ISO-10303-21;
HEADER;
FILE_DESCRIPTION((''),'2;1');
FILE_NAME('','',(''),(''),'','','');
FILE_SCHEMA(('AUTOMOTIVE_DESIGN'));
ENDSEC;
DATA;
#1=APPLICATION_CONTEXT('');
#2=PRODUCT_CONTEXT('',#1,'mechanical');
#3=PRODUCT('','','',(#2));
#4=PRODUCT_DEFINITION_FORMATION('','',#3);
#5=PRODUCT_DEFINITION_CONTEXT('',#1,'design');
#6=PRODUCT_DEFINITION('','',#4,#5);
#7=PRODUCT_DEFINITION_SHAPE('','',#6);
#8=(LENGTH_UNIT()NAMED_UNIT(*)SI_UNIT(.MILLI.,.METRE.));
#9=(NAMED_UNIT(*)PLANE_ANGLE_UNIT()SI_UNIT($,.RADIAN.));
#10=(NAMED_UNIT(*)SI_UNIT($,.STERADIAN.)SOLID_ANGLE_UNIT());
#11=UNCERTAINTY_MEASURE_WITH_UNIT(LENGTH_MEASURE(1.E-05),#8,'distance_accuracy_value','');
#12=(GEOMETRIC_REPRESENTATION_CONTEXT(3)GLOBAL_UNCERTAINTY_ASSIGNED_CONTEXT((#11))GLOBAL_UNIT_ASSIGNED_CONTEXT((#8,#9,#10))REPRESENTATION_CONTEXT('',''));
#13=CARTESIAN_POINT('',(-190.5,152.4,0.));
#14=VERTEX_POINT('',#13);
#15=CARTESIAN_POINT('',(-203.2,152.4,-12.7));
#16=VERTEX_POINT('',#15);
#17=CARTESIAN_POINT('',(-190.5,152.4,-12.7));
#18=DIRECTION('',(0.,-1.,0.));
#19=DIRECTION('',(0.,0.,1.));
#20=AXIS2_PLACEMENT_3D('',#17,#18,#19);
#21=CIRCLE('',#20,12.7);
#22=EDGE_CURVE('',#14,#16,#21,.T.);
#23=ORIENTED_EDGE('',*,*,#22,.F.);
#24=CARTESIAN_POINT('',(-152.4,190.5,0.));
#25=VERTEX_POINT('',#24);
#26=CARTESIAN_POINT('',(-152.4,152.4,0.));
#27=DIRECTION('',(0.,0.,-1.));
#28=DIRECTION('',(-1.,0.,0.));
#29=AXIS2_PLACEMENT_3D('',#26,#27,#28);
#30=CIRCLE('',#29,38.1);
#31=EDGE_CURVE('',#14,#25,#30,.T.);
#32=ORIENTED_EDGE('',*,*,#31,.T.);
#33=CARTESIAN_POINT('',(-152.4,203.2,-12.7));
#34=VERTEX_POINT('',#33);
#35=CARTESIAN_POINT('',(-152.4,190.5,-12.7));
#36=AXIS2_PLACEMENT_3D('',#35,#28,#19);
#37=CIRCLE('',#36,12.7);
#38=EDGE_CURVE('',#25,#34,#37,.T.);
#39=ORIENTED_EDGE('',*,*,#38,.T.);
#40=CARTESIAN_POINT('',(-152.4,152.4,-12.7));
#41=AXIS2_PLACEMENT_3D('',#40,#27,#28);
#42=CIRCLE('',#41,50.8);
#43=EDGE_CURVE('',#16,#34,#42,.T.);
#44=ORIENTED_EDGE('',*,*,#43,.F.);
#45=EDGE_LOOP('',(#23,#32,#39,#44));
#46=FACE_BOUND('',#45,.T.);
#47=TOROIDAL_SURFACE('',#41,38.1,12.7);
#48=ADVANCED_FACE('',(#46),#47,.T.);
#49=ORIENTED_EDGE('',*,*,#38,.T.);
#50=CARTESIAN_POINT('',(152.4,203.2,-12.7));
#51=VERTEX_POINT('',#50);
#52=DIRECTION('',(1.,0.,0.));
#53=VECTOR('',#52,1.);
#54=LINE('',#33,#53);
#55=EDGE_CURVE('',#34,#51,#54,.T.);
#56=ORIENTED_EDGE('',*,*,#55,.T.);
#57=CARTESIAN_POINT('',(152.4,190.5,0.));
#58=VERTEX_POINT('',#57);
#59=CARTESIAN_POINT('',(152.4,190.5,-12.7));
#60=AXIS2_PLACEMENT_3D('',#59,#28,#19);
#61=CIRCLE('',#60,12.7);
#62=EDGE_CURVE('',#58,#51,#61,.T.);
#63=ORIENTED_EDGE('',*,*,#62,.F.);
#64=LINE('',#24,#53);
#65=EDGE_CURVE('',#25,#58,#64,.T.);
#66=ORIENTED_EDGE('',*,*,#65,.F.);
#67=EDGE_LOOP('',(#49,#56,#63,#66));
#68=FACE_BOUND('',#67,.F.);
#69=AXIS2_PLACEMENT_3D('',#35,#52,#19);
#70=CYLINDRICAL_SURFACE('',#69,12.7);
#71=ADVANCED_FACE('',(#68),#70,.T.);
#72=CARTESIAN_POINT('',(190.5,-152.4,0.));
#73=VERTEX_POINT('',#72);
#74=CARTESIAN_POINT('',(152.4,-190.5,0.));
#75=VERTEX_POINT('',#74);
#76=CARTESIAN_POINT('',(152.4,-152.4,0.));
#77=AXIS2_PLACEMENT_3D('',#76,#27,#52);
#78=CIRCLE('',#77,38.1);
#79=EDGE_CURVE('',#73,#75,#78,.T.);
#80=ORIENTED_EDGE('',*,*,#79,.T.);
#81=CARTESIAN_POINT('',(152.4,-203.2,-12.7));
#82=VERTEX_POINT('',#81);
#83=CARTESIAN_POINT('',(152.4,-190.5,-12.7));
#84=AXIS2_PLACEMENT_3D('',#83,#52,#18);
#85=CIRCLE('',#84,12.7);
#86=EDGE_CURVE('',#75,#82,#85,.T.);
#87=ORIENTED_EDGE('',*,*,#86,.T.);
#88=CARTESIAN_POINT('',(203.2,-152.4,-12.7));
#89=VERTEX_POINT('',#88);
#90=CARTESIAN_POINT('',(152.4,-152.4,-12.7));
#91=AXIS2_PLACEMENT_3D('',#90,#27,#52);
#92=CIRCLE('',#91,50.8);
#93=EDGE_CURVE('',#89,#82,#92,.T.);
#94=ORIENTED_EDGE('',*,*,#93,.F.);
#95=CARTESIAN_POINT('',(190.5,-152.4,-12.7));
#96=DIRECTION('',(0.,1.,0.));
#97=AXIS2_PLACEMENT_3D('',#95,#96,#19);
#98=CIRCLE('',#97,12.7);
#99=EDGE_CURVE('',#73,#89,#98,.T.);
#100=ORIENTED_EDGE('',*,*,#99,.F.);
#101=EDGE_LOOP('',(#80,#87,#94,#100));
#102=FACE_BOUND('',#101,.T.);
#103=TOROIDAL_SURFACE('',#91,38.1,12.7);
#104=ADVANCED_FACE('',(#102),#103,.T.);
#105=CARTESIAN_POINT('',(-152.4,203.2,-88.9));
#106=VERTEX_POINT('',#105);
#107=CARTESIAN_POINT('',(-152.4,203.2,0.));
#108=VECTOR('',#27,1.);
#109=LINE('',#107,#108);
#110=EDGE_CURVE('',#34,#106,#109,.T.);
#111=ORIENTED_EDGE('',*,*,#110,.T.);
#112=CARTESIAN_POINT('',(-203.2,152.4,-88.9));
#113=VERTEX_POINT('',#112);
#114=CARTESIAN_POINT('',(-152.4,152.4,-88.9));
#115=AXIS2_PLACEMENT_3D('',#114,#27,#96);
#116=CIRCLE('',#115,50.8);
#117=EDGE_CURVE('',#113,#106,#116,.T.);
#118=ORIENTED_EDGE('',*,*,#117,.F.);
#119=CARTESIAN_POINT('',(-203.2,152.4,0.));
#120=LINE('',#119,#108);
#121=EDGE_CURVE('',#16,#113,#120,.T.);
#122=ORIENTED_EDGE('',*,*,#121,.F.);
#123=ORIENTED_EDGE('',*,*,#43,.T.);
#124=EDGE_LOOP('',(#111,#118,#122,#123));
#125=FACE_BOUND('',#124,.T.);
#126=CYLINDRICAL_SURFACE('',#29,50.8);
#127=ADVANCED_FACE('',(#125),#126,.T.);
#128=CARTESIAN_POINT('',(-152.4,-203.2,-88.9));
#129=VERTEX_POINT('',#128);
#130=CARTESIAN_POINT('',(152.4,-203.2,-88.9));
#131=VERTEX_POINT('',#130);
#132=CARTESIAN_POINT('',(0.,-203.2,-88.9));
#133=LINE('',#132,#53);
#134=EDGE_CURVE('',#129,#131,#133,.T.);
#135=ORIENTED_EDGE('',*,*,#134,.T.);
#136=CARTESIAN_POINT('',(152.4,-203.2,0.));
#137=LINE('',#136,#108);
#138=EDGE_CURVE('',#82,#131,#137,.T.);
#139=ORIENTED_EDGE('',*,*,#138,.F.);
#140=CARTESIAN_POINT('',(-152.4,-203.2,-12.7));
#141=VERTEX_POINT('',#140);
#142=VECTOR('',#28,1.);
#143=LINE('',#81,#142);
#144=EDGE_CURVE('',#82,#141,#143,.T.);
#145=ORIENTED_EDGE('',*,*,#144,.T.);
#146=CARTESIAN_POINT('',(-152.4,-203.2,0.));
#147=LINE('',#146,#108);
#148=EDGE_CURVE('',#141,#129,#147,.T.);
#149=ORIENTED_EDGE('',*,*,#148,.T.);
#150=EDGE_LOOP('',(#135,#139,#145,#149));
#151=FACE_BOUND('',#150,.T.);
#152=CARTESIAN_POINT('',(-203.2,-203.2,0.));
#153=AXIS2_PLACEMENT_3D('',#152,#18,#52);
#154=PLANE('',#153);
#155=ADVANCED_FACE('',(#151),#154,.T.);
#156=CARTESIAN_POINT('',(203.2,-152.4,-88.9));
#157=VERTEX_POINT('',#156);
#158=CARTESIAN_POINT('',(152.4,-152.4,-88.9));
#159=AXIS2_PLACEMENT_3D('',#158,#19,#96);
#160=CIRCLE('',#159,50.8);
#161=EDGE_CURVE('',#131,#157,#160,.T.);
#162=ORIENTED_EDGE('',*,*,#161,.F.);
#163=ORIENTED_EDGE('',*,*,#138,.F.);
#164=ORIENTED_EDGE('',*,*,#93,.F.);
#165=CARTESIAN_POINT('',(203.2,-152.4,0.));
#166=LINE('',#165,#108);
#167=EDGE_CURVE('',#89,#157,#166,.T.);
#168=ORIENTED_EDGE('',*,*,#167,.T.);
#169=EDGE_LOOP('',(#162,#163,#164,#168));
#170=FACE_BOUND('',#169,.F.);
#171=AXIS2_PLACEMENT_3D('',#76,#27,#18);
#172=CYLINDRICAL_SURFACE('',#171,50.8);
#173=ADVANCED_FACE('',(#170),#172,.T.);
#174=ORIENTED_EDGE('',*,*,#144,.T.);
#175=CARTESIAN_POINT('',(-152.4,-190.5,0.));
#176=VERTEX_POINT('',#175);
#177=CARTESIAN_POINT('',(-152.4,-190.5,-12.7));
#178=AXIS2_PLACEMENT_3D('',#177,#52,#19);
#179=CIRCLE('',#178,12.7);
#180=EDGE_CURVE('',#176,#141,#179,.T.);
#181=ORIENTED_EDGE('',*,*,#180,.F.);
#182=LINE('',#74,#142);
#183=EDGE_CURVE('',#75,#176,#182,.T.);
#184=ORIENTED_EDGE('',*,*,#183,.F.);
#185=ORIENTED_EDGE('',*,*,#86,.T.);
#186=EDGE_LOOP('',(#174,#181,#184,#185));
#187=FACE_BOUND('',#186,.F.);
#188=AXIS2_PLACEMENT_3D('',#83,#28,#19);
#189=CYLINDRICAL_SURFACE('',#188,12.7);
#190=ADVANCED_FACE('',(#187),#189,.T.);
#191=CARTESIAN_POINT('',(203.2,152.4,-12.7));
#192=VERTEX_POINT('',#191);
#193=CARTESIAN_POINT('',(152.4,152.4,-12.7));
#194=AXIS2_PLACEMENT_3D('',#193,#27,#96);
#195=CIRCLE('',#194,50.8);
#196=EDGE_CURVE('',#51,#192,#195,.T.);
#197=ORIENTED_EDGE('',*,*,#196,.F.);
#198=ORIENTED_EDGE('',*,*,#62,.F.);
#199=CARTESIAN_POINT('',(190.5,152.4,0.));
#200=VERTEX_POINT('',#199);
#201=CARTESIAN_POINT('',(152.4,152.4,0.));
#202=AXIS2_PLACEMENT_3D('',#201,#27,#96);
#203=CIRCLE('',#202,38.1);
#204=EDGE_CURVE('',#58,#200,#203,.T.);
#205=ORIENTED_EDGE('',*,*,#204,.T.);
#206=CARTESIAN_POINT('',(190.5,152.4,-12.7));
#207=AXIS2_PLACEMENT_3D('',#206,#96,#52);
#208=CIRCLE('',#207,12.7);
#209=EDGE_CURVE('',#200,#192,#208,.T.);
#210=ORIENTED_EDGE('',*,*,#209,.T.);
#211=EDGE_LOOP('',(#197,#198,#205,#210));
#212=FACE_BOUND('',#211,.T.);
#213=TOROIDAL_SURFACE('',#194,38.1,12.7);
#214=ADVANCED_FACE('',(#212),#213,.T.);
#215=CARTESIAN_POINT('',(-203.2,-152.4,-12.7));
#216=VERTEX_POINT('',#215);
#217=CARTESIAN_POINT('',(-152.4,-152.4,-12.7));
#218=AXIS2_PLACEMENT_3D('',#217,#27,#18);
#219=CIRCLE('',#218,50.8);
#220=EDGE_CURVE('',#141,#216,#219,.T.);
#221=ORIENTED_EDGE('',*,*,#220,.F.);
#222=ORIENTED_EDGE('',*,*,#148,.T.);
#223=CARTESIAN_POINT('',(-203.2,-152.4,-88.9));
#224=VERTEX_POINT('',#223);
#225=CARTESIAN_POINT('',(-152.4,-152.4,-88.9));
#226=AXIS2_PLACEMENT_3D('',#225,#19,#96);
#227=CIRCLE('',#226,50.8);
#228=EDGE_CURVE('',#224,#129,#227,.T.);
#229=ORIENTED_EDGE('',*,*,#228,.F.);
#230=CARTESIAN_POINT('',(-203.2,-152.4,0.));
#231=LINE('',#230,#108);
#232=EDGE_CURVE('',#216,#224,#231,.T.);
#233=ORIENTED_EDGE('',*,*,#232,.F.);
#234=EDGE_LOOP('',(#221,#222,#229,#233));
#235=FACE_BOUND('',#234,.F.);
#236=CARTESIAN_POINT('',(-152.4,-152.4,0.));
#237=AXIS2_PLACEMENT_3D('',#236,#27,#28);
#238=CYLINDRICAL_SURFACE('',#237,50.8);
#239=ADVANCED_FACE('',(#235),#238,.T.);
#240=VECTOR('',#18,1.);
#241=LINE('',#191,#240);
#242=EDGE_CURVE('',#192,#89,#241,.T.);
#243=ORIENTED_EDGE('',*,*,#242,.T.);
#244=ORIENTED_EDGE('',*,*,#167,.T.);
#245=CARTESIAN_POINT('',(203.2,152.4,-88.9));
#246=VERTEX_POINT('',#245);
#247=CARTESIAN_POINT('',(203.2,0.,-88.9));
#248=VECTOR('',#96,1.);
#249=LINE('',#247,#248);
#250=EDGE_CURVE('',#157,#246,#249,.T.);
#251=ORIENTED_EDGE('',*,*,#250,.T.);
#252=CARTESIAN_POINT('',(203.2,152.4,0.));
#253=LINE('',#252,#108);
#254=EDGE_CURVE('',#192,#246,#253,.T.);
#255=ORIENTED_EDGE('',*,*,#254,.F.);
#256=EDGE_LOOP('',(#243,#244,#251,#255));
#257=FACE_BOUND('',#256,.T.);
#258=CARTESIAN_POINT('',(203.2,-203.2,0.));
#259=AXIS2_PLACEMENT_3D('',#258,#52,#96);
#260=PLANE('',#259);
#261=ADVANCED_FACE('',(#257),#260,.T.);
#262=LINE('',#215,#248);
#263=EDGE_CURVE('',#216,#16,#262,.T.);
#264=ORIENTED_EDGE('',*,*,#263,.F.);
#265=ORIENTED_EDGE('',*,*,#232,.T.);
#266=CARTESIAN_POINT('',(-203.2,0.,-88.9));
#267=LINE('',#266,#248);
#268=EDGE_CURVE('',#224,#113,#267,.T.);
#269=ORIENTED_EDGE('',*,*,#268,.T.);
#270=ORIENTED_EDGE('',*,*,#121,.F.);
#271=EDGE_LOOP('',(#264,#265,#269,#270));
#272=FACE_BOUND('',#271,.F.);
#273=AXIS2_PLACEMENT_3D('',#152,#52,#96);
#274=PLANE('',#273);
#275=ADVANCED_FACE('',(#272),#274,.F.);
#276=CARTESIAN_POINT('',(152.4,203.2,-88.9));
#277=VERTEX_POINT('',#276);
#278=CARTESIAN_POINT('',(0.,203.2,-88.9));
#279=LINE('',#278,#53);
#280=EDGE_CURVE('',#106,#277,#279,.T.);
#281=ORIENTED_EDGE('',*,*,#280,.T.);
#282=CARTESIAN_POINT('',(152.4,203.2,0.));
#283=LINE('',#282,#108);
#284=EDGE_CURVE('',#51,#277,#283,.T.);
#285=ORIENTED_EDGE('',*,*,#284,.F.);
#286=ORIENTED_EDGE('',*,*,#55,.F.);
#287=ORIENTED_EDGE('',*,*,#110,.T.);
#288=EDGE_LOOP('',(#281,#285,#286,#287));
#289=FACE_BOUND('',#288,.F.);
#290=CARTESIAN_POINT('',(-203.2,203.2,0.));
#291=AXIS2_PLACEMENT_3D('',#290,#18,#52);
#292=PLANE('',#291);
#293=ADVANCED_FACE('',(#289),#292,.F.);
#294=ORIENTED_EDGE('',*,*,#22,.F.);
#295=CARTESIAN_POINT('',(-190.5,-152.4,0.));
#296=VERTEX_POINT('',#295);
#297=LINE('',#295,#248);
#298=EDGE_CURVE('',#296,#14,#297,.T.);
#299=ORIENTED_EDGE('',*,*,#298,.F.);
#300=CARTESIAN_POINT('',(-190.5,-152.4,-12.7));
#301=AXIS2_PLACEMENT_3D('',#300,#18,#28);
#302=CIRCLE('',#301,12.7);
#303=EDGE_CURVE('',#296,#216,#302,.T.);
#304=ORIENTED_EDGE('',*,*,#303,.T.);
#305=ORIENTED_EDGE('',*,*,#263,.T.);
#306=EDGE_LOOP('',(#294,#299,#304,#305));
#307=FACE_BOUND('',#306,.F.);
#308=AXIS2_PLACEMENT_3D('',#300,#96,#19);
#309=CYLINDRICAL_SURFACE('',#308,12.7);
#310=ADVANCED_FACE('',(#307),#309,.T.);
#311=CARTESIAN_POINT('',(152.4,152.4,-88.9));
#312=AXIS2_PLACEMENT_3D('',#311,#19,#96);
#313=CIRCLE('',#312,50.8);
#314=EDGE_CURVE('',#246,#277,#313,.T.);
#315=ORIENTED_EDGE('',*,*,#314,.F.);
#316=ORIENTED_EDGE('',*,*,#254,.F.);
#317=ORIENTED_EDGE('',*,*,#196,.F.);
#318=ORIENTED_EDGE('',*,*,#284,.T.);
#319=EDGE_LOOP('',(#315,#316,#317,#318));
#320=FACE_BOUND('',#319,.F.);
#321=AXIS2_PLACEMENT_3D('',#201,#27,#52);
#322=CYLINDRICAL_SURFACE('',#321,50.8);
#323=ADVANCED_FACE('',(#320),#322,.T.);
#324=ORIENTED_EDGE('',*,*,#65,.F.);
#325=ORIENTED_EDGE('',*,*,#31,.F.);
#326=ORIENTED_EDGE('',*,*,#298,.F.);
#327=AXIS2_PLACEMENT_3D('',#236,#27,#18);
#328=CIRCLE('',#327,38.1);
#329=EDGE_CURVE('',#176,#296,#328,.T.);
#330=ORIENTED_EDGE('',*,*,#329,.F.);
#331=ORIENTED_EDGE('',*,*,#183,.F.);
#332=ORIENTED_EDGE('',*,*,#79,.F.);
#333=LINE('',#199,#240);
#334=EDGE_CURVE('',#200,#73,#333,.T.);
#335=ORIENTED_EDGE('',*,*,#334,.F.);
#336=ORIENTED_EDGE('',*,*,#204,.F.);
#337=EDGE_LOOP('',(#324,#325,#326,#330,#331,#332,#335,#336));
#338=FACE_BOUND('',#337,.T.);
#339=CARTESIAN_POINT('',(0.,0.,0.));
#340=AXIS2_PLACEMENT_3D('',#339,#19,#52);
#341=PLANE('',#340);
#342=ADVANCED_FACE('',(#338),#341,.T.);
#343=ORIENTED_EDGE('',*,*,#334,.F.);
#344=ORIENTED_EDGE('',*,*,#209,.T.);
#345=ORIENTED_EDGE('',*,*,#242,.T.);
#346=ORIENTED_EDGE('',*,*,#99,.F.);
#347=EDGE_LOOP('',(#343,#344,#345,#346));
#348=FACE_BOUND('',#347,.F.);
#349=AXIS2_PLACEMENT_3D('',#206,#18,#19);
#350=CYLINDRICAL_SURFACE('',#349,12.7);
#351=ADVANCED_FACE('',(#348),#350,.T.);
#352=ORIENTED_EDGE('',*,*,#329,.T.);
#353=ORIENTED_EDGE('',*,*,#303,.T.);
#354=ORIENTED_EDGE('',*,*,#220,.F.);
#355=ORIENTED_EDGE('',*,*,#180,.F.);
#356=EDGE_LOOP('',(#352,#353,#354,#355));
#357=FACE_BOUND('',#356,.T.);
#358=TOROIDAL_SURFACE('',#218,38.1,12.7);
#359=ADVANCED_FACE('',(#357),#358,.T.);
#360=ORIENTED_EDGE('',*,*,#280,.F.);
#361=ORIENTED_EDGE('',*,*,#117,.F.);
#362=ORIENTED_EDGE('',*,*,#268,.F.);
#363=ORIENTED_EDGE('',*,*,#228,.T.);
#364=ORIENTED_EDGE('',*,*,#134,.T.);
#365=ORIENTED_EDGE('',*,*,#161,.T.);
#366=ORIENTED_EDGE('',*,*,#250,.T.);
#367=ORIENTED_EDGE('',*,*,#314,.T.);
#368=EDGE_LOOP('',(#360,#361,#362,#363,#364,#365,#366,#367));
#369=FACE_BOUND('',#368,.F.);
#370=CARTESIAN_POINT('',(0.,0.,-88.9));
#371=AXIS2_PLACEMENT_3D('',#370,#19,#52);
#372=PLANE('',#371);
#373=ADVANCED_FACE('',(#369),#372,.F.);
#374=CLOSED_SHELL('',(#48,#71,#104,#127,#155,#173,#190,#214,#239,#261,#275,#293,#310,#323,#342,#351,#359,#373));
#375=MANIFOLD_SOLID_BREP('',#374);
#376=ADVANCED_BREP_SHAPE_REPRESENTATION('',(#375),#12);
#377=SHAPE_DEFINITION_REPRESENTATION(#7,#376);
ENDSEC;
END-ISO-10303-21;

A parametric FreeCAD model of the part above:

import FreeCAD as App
import Part
import Sketcher
from FreeCAD import Vector
Q = App.Units.Quantity


def edges_at(feature, points):
    """Names of the edges that pass closest to the given points."""
    edges = feature.Shape.Edges
    near = lambda p: min(range(len(edges)), key=lambda i: edges[i].distToShape(Part.Vertex(*p))[0])
    return sorted({f"Edge{near(p) + 1}" for p in points})


def add_polygon(sketch, points):
    """Adds a closed chain of lines whose ends are joined by coincident constraints."""
    first, n = sketch.GeometryCount, len(points)
    for a, b in zip(points, points[1:] + points[:1]):
        sketch.addGeometry(Part.LineSegment(App.Vector(*a, 0), App.Vector(*b, 0)), False)
    for i in range(n):
        sketch.addConstraint(Sketcher.Constraint("Coincident", first + i, 2, first + (i + 1) % n, 1))

doc = App.newDocument("Part")
body = doc.addObject("PartDesign::Body", "Body")

sketch1 = body.newObject("Sketcher::SketchObject", "Sketch")
sketch1.AttachmentSupport = (doc.getObject("XY_Plane"), [""])
sketch1.MapMode = "FlatFace"
add_polygon(sketch1, [(-203.2, 203.2), (-203.2, -203.2), (203.2, -203.2), (203.2, 203.2)])
sketch1.addConstraint(Sketcher.Constraint("Vertical", 0))
sketch1.addConstraint(Sketcher.Constraint("Horizontal", 1))
sketch1.addConstraint(Sketcher.Constraint("Vertical", 2))
sketch1.addConstraint(Sketcher.Constraint("Horizontal", 3))
sketch1.addConstraint(Sketcher.Constraint("Symmetric", 0, 2, 2, 2, -1, 1))
sketch1.addConstraint(Sketcher.Constraint("Equal", 3, 0))
sketch1.addConstraint(Sketcher.Constraint("DistanceX", 1, 1, 1, 2, Q("16 in")))
pad1 = body.newObject("PartDesign::Pad", "Pad")
pad1.Profile = sketch1
pad1.Length = Q("3.5 in")
pad1.Reversed = True
doc.recompute()

fillet = body.newObject("PartDesign::Fillet", "Fillet")
fillet.Base = (pad1, edges_at(pad1, [
    (-203.2, -203.2, -44.45),
    (203.2, -203.2, -44.45),
    (203.2, 203.2, -44.45),
    (-203.2, 203.2, -44.45),
]))
fillet.Radius = Q("2 in")
doc.recompute()

fillet2 = body.newObject("PartDesign::Fillet", "Fillet001")
fillet2.Base = (fillet, edges_at(fillet, [(0, 203.2, 0)]))
fillet2.Radius = Q("0.5 in")

doc.recompute()
